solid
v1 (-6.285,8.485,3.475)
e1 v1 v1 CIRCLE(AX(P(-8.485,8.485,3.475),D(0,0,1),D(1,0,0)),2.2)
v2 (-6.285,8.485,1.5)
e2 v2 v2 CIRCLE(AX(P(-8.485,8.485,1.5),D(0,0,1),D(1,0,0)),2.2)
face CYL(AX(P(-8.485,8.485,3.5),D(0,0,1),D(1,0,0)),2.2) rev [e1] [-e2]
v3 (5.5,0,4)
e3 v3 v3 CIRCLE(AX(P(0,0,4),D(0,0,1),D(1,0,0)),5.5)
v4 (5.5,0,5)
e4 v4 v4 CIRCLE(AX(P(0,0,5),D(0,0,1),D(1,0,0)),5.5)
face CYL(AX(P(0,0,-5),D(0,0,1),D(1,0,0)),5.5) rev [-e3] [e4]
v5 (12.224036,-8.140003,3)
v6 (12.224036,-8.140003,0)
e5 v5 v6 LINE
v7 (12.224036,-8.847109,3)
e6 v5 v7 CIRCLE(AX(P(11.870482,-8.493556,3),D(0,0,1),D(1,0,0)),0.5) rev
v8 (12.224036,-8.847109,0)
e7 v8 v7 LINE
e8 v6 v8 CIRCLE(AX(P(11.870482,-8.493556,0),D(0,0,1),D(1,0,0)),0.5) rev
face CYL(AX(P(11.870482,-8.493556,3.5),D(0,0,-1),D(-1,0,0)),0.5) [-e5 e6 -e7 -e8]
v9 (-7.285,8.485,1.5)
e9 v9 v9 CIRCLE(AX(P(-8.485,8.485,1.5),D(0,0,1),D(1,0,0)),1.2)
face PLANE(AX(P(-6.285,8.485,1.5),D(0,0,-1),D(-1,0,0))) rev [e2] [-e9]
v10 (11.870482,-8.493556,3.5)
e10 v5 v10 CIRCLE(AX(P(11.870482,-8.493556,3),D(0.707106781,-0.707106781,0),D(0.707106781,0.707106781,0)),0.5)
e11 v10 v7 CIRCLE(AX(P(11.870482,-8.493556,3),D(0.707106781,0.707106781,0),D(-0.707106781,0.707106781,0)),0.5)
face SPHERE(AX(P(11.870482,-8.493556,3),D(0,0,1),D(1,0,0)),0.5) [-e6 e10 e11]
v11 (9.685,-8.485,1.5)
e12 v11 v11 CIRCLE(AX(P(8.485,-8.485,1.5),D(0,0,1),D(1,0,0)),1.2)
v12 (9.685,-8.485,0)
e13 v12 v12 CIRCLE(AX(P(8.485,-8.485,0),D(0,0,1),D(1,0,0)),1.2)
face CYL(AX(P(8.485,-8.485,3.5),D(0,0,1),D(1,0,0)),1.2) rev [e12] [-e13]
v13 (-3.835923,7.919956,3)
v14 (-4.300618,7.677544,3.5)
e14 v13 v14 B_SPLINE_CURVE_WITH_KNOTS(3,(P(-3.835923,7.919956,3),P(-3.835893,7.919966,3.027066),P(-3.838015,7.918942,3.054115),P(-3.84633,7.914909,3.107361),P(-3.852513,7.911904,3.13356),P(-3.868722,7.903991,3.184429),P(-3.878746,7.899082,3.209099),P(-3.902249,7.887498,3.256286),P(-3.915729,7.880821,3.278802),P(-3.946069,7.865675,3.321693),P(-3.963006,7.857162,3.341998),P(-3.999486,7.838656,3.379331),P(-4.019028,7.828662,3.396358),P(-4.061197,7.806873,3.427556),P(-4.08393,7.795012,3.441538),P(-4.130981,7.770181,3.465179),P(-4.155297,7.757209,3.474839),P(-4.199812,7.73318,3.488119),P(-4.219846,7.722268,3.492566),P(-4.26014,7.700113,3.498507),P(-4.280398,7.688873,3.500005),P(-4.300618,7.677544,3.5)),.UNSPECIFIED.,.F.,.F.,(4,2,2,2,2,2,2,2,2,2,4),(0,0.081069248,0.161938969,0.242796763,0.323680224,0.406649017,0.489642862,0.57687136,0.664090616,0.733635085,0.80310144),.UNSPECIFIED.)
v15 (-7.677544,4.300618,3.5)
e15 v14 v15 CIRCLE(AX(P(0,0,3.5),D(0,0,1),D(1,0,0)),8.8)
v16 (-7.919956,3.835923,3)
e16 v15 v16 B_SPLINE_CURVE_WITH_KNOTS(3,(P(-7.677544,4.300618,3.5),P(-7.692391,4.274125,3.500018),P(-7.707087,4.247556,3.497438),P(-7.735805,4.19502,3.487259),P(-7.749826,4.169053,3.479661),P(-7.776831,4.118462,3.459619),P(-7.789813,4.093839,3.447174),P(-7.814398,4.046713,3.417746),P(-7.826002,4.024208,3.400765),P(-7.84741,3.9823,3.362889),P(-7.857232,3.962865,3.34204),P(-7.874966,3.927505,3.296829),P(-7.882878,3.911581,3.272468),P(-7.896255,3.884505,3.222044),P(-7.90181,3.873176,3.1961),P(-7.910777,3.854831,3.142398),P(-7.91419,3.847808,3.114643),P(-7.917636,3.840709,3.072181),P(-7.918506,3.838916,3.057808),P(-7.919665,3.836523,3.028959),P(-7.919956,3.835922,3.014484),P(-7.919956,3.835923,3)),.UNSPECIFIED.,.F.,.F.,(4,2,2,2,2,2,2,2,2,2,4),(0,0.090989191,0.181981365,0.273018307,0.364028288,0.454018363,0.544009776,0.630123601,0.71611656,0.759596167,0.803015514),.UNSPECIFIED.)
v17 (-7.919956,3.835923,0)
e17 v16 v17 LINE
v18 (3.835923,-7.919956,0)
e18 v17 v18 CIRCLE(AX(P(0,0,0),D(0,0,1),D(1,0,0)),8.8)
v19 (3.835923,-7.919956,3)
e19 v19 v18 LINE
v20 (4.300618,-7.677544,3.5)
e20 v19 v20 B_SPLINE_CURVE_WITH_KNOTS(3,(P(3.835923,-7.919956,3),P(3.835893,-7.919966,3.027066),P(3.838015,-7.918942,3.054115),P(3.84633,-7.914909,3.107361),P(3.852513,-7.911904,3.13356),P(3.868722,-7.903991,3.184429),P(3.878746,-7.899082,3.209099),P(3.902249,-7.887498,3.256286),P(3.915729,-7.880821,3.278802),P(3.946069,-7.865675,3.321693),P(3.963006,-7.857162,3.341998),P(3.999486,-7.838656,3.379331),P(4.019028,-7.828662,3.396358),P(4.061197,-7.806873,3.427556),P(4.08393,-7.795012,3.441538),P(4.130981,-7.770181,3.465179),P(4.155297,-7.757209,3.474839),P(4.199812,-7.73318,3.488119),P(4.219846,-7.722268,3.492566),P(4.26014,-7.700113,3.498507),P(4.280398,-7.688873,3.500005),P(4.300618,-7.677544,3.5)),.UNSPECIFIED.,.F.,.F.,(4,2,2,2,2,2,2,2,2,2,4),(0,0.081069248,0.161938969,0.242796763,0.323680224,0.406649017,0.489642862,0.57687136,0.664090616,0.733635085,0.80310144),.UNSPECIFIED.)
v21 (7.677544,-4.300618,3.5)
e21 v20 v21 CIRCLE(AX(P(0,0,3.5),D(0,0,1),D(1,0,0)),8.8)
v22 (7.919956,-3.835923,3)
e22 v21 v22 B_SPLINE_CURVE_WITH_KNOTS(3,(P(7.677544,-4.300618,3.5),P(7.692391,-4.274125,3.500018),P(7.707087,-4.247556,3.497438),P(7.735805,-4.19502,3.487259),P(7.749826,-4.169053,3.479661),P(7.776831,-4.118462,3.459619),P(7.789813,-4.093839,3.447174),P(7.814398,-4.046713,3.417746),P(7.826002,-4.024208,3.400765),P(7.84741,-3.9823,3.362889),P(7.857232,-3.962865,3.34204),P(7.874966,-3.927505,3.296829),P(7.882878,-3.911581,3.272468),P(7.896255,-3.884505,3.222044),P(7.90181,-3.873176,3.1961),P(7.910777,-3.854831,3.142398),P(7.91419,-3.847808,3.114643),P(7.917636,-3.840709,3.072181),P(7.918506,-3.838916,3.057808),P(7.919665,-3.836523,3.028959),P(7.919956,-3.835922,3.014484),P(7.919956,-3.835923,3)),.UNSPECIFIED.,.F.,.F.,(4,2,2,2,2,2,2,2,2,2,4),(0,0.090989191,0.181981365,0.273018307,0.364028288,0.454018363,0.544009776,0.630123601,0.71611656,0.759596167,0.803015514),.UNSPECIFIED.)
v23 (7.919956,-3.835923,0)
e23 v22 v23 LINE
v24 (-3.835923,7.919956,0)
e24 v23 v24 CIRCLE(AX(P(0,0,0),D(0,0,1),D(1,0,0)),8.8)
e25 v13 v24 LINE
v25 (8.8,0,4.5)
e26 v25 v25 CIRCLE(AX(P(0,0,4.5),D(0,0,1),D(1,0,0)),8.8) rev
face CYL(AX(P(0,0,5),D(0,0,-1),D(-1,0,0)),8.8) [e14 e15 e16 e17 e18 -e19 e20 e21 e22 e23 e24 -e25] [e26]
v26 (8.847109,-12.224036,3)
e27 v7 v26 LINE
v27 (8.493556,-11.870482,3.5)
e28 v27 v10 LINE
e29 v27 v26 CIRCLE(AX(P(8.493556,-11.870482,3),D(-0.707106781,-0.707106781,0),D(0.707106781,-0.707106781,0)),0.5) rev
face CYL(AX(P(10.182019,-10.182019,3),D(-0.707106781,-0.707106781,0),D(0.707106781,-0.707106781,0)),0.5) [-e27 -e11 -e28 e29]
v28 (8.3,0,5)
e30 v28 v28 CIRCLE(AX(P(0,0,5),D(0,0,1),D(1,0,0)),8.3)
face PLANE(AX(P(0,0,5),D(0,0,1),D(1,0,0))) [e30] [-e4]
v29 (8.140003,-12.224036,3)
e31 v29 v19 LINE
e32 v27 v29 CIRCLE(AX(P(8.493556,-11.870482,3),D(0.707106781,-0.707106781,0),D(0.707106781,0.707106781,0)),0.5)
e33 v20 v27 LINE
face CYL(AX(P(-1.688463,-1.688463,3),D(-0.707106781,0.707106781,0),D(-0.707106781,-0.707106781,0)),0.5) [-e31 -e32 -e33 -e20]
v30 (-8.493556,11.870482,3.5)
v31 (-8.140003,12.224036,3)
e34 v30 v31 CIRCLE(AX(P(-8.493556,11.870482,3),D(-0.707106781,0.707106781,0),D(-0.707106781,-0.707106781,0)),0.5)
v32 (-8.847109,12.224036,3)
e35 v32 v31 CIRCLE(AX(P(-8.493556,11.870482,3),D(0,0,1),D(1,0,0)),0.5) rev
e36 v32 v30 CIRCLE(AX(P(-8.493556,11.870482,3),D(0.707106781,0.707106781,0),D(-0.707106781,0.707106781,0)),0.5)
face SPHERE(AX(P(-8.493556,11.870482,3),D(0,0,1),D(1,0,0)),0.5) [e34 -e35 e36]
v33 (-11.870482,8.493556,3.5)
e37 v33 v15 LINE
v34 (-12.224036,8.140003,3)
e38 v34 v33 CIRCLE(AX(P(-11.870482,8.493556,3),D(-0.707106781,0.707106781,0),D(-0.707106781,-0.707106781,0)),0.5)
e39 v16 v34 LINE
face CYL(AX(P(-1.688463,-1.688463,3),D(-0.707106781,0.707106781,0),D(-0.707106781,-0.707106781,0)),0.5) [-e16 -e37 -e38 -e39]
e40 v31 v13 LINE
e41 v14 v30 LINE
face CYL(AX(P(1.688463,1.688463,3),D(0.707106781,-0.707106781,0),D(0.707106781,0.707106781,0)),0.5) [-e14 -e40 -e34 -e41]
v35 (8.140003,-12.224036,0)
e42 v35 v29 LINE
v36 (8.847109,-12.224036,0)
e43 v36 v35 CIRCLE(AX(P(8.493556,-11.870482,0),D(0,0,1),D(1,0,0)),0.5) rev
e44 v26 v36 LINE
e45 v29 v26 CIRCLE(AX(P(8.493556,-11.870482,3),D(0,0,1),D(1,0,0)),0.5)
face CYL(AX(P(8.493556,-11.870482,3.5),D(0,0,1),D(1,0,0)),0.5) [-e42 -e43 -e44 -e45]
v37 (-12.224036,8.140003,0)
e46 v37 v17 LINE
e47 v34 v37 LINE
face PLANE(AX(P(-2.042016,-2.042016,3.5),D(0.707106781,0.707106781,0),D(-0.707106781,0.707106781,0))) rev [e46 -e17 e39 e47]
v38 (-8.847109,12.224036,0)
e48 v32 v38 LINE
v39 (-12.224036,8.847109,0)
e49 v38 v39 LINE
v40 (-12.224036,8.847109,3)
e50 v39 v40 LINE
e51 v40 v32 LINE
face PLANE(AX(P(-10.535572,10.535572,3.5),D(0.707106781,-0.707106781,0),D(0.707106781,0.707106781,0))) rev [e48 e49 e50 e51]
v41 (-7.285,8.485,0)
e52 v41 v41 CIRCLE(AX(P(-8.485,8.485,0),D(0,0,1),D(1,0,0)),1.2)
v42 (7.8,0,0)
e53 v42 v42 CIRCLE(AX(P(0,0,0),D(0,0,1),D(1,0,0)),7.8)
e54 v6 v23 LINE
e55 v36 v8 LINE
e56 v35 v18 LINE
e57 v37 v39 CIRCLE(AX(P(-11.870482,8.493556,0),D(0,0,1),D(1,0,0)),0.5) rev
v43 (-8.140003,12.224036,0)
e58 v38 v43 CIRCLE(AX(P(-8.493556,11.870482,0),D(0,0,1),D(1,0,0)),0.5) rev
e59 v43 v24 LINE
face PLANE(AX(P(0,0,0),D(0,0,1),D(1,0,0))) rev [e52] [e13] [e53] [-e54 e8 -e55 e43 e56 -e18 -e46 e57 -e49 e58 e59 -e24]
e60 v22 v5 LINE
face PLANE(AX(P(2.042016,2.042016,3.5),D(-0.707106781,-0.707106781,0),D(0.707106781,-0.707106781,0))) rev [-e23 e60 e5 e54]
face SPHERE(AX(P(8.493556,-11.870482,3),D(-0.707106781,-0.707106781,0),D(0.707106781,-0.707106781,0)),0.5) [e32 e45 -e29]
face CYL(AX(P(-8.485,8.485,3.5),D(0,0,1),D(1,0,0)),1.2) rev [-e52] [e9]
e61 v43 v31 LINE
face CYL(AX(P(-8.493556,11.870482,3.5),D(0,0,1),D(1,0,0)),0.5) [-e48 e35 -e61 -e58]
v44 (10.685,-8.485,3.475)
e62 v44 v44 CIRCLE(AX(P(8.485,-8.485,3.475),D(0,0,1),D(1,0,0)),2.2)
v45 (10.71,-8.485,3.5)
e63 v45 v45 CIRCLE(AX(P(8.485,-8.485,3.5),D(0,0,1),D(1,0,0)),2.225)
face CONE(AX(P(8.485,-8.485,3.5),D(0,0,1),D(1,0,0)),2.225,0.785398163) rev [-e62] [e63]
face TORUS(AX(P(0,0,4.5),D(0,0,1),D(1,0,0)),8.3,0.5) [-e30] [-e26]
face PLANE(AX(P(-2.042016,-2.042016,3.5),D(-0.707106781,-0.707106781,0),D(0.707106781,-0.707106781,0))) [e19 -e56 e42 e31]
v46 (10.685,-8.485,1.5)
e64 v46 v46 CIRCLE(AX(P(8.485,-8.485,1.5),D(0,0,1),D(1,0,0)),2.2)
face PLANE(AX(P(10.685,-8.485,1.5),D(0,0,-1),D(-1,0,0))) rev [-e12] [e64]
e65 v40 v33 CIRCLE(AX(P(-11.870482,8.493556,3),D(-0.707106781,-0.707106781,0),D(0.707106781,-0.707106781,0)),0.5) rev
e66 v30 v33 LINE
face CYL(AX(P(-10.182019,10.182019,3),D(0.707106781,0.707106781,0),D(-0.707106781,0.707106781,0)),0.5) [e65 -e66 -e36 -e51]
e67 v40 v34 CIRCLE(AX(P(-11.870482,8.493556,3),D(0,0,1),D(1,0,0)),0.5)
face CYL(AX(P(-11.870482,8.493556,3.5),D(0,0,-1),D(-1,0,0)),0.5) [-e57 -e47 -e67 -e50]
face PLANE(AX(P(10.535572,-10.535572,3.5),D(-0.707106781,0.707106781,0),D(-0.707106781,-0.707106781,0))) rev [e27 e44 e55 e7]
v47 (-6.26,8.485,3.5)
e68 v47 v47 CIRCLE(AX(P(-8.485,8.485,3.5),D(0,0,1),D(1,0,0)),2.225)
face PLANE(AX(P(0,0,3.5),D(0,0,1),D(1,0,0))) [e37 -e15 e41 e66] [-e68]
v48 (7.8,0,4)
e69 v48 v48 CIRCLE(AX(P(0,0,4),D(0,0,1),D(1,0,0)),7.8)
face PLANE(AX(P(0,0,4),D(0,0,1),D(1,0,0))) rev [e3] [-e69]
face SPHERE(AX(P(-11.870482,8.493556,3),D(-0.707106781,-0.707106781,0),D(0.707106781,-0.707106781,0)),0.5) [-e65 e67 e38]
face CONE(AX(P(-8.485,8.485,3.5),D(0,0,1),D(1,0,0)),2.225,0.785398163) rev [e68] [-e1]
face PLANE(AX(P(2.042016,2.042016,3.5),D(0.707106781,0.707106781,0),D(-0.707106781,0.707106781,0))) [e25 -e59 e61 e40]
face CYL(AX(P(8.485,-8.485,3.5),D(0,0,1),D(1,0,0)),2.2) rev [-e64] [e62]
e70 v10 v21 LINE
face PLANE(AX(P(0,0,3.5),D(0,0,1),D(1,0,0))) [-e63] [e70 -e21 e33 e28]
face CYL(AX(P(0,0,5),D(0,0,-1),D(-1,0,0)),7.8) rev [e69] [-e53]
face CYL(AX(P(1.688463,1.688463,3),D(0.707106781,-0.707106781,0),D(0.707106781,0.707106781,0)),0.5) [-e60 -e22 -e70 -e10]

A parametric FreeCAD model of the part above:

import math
import FreeCAD as App
import Part
import Sketcher
from FreeCAD import Vector
Q = App.Units.Quantity


def edges_at(feature, points):
    """Names of the edges that pass closest to the given points."""
    edges = feature.Shape.Edges
    near = lambda p: min(range(len(edges)), key=lambda i: edges[i].distToShape(Part.Vertex(*p))[0])
    return sorted({f"Edge{near(p) + 1}" for p in points})


def faces_at(feature, points):
    """Names of the faces that lie closest to the given points."""
    faces = feature.Shape.Faces
    near = lambda p: min(range(len(faces)), key=lambda i: faces[i].distToShape(Part.Vertex(*p))[0])
    return sorted({f"Face{near(p) + 1}" for p in points})

doc = App.newDocument("Part")
body = doc.addObject("PartDesign::Body", "Body")

# Sketch on XY plane
sketch1 = body.newObject("Sketcher::SketchObject", "Sketch")
sketch1.AttachmentSupport = (doc.getObject("XY_Plane"), [""])
sketch1.MapMode = "FlatFace"
sketch1.addGeometry(Part.ArcOfCircle(Part.Circle(Vector(0, 0, 0), Vector(0, 0, 1), 8.8), math.radians(-26), math.radians(0)), False)
sketch1.addGeometry(Part.ArcOfCircle(Part.Circle(Vector(0, 0, 0), Vector(0, 0, 1), 8.8), math.radians(0), math.radians(116)), False)
sketch1.addGeometry(Part.ArcOfCircle(Part.Circle(Vector(0, 0, 0), Vector(0, 0, 1), 8.8), math.radians(115.84), math.radians(135)), False)
sketch1.addGeometry(Part.ArcOfCircle(Part.Circle(Vector(0, 0, 0), Vector(0, 0, 1), 8.8), math.radians(135), math.radians(154.16)), False)
sketch1.addGeometry(Part.ArcOfCircle(Part.Circle(Vector(0, 0, 0), Vector(0, 0, 1), 8.8), math.radians(154), math.radians(296)), False)
sketch1.addGeometry(Part.ArcOfCircle(Part.Circle(Vector(0, 0, 0), Vector(0, 0, 1), 8.8), math.radians(-64.16), math.radians(-45)), False)
sketch1.addGeometry(Part.ArcOfCircle(Part.Circle(Vector(0, 0, 0), Vector(0, 0, 1), 8.8), math.radians(-45), math.radians(-25.84)), False)
sketch1.addConstraint(Sketcher.Constraint("Tangent", 0, 2, 1, 1))
sketch1.addConstraint(Sketcher.Constraint("Tangent", 1, 2, 2, 1))
sketch1.addConstraint(Sketcher.Constraint("Tangent", 2, 2, 3, 1))
sketch1.addConstraint(Sketcher.Constraint("Tangent", 3, 2, 4, 1))
sketch1.addConstraint(Sketcher.Constraint("Tangent", 4, 2, 5, 1))
sketch1.addConstraint(Sketcher.Constraint("Tangent", 5, 2, 6, 1))
sketch1.addConstraint(Sketcher.Constraint("Tangent", 6, 2, 0, 1))
sketch1.addConstraint(Sketcher.Constraint("Coincident", 0, 3, -1, 1))
sketch1.addConstraint(Sketcher.Constraint("Coincident", 2, 3, -1, 1))
sketch1.addConstraint(Sketcher.Constraint("Coincident", 4, 3, -1, 1))
sketch1.addConstraint(Sketcher.Constraint("PointOnObject", 0, 2, -1))
sketch1.addConstraint(Sketcher.Constraint("Radius", 0, Q("8.8 mm")))
sketch1.addConstraint(Sketcher.Constraint("DistanceX", 2, 2, -1, 1, Q("6.22254 mm")))
sketch1.addConstraint(Sketcher.Constraint("DistanceX", -1, 1, 5, 2, Q("6.22254 mm")))
sketch1.addConstraint(Sketcher.Constraint("DistanceX", 1, 2, -1, 1, Q("3.835923 mm")))
sketch1.addConstraint(Sketcher.Constraint("DistanceX", 3, 2, -1, 1, Q("7.919956 mm")))
sketch1.addConstraint(Sketcher.Constraint("DistanceX", -1, 1, 4, 2, Q("3.835923 mm")))
sketch1.addConstraint(Sketcher.Constraint("DistanceX", -1, 1, 6, 2, Q("7.919956 mm")))
pad1 = body.newObject("PartDesign::Pad", "Pad")
pad1.Profile = sketch1
pad1.Length = 5
doc.recompute()

thickness = body.newObject("PartDesign::Thickness", "Thickness")
thickness.Base = (pad1, faces_at(pad1, [(0, 0, 0)]))
thickness.Value = 1
thickness.Reversed = True
thickness.Join = "Intersection"

# Sketch on XY plane
sketch2 = body.newObject("Sketcher::SketchObject", "Sketch001")
sketch2.AttachmentSupport = (doc.getObject("XY_Plane"), [""])
sketch2.MapMode = "FlatFace"
sketch2.addGeometry(Part.ArcOfCircle(Part.Circle(Vector(0, 0, 0), Vector(0, 0, 1), 8.8), math.radians(135), math.radians(154.16)), False)
sketch2.addGeometry(Part.ArcOfCircle(Part.Circle(Vector(0, 0, 0), Vector(0, 0, 1), 8.8), math.radians(115.84), math.radians(135)), False)
sketch2.addGeometry(Part.LineSegment(Vector(-3.8, 7.9, 0), Vector(-8.5, 12.6, 0)), False)
sketch2.addGeometry(Part.LineSegment(Vector(-8.5, 12.6, 0), Vector(-12.6, 8.5, 0)), False)
sketch2.addGeometry(Part.LineSegment(Vector(-12.6, 8.5, 0), Vector(-7.9, 3.8, 0)), False)
sketch2.addGeometry(Part.ArcOfCircle(Part.Circle(Vector(0, 0, 0), Vector(0, 0, 1), 8.8), math.radians(-45), math.radians(-25.84)), False)
sketch2.addGeometry(Part.ArcOfCircle(Part.Circle(Vector(0, 0, 0), Vector(0, 0, 1), 8.8), math.radians(-64.16), math.radians(-45)), False)
sketch2.addGeometry(Part.LineSegment(Vector(3.8, -7.9, 0), Vector(8.5, -12.6, 0)), False)
sketch2.addGeometry(Part.LineSegment(Vector(8.5, -12.6, 0), Vector(12.6, -8.5, 0)), False)
sketch2.addGeometry(Part.LineSegment(Vector(12.6, -8.5, 0), Vector(7.9, -3.8, 0)), False)
sketch2.addConstraint(Sketcher.Constraint("Tangent", 0, 1, 1, 2))
sketch2.addConstraint(Sketcher.Constraint("Coincident", 1, 1, 2, 1))
sketch2.addConstraint(Sketcher.Constraint("Coincident", 2, 2, 3, 1))
sketch2.addConstraint(Sketcher.Constraint("Coincident", 3, 2, 4, 1))
sketch2.addConstraint(Sketcher.Constraint("Coincident", 4, 2, 0, 2))
sketch2.addConstraint(Sketcher.Constraint("Tangent", 5, 1, 6, 2))
sketch2.addConstraint(Sketcher.Constraint("Coincident", 6, 1, 7, 1))
sketch2.addConstraint(Sketcher.Constraint("Coincident", 7, 2, 8, 1))
sketch2.addConstraint(Sketcher.Constraint("Coincident", 8, 2, 9, 1))
sketch2.addConstraint(Sketcher.Constraint("Coincident", 9, 2, 5, 2))
sketch2.addConstraint(Sketcher.Constraint("Coincident", 0, 3, -1, 1))
sketch2.addConstraint(Sketcher.Constraint("Coincident", 5, 3, -1, 1))
sketch2.addConstraint(Sketcher.Constraint("Equal", 0, 1))
sketch2.addConstraint(Sketcher.Constraint("Equal", 1, 5))
sketch2.addConstraint(Sketcher.Constraint("Equal", 5, 6))
sketch2.addConstraint(Sketcher.Constraint("Symmetric", 2, 2, 7, 2, -1, 1))
sketch2.addConstraint(Sketcher.Constraint("Symmetric", 3, 2, 8, 2, -1, 1))
sketch2.addConstraint(Sketcher.Constraint("Perpendicular", 2, 3))
sketch2.addConstraint(Sketcher.Constraint("Perpendicular", 3, 4))
sketch2.addConstraint(Sketcher.Constraint("Parallel", 4, 7))
sketch2.addConstraint(Sketcher.Constraint("Perpendicular", 8, 9))
sketch2.addConstraint(Sketcher.Constraint("Equal", 2, 4))
sketch2.addConstraint(Sketcher.Constraint("Radius", 0, Q("8.8 mm")))
sketch2.addConstraint(Sketcher.Constraint("Angle", 2, Q("135 deg")))
sketch2.addConstraint(Sketcher.Constraint("DistanceY", 1, 1, 3, 2, Q("0.5736 mm")))
sketch2.addConstraint(Sketcher.Constraint("Distance", 2, Q("6.586888 mm")))
sketch2.addConstraint(Sketcher.Constraint("DistanceX", 0, 1, -1, 1, Q("6.22254 mm")))
sketch2.addConstraint(Sketcher.Constraint("DistanceX", -1, 1, 5, 1, Q("6.22254 mm")))
pad2 = body.newObject("PartDesign::Pad", "Pad001")
pad2.Profile = sketch2
pad2.Length = 3.5

# Sketch on YZ plane
sketch3 = body.newObject("Sketcher::SketchObject", "Sketch002")
sketch3.AttachmentSupport = (doc.getObject("YZ_Plane"), [""])
sketch3.MapMode = "FlatFace"
sketch3.AttachmentOffset = App.Placement(Vector(0, 0, -8.485), App.Rotation())
sketch3.addGeometry(Part.LineSegment(Vector(8.485, 0, 0), Vector(8.485, 3.5, 0)), False)
sketch3.addGeometry(Part.LineSegment(Vector(8.485, 3.5, 0), Vector(6.26, 3.5, 0)), False)
sketch3.addGeometry(Part.LineSegment(Vector(6.26, 3.5, 0), Vector(6.285, 3.475, 0)), False)
sketch3.addGeometry(Part.LineSegment(Vector(6.285, 3.475, 0), Vector(6.285, 1.5, 0)), False)
sketch3.addGeometry(Part.LineSegment(Vector(6.285, 1.5, 0), Vector(7.285, 1.5, 0)), False)
sketch3.addGeometry(Part.LineSegment(Vector(7.285, 1.5, 0), Vector(7.285, 0, 0)), False)
sketch3.addGeometry(Part.LineSegment(Vector(7.285, 0, 0), Vector(8.485, 0, 0)), False)
sketch3.addGeometry(Part.LineSegment(Vector(8.485, 3.5, 0), Vector(8.485, 0, 0)), True)  # axis
sketch3.addConstraint(Sketcher.Constraint("Coincident", 0, 2, 1, 1))
sketch3.addConstraint(Sketcher.Constraint("Coincident", 1, 2, 2, 1))
sketch3.addConstraint(Sketcher.Constraint("Coincident", 2, 2, 3, 1))
sketch3.addConstraint(Sketcher.Constraint("Coincident", 3, 2, 4, 1))
sketch3.addConstraint(Sketcher.Constraint("Coincident", 4, 2, 5, 1))
sketch3.addConstraint(Sketcher.Constraint("Coincident", 5, 2, 6, 1))
sketch3.addConstraint(Sketcher.Constraint("Coincident", 6, 2, 0, 1))
sketch3.addConstraint(Sketcher.Constraint("Vertical", 0))
sketch3.addConstraint(Sketcher.Constraint("Horizontal", 1))
sketch3.addConstraint(Sketcher.Constraint("Vertical", 3))
sketch3.addConstraint(Sketcher.Constraint("Horizontal", 4))
sketch3.addConstraint(Sketcher.Constraint("Vertical", 5))
sketch3.addConstraint(Sketcher.Constraint("Horizontal", 6))
sketch3.addConstraint(Sketcher.Constraint("Vertical", 7))
sketch3.addConstraint(Sketcher.Constraint("Coincident", 7, 1, 0, 2))
sketch3.addConstraint(Sketcher.Constraint("PointOnObject", 5, 2, -1))
sketch3.addConstraint(Sketcher.Constraint("PointOnObject", 7, 2, -1))
sketch3.addConstraint(Sketcher.Constraint("DistanceX", 4, 1, 4, 2, Q("1 mm")))
sketch3.addConstraint(Sketcher.Constraint("Angle", 2, Q("-45 deg")))
sketch3.addConstraint(Sketcher.Constraint("DistanceX", 6, 1, 6, 2, Q("1.2 mm")))
sketch3.addConstraint(Sketcher.Constraint("DistanceY", 0, 1, 0, 2, Q("3.5 mm")))
sketch3.addConstraint(Sketcher.Constraint("DistanceY", 5, 2, 5, 1, Q("1.5 mm")))
sketch3.addConstraint(Sketcher.Constraint("DistanceX", 1, 2, 1, 1, Q("2.225 mm")))
sketch3.addConstraint(Sketcher.Constraint("DistanceX", -1, 1, 1, 2, Q("6.26 mm")))
groove = body.newObject("PartDesign::Groove", "Groove")
groove.Profile = sketch3
groove.ReferenceAxis = (sketch3, ["Axis0"])
groove.Angle = 360
doc.recompute()

datumline = body.newObject("PartDesign::Line", "DatumLine")
datumline.Placement = App.Placement(Vector(0, 0, 0), App.Rotation(Vector(0, 0, 1), Vector(0.707106781, -0.707106781, 0)))
linearpattern = body.newObject("PartDesign::LinearPattern", "LinearPattern")
linearpattern.Originals = [groove]
linearpattern.Direction = (datumline, [""])
linearpattern.Mode = "offset"
linearpattern.Offset = 23.999204
linearpattern.Occurrences = 2
body.Tip = linearpattern
doc.recompute()

fillet = body.newObject("PartDesign::Fillet", "Fillet")
fillet.Base = (linearpattern, edges_at(linearpattern, [
    (6.165, -10.249, 3.5),
    (8.494, -12.578, 1.75),
    (12.578, -8.494, 1.75),
    (10.536, -10.536, 3.5),
    (10.249, -6.165, 3.5),
    (-12.578, 8.494, 1.75),
    (-6.165, 10.249, 3.5),
    (-8.494, 12.578, 1.75),
    (-10.249, 6.165, 3.5),
    (-10.536, 10.536, 3.5),
    (5.1, -7.171, 5),
]))
fillet.Radius = 0.5

# Sketch on XY plane
sketch4 = body.newObject("Sketcher::SketchObject", "Sketch003")
sketch4.AttachmentSupport = (doc.getObject("XY_Plane"), [""])
sketch4.MapMode = "FlatFace"
sketch4.AttachmentOffset = App.Placement(Vector(0, 0, 5), App.Rotation())
sketch4.addGeometry(Part.Circle(Vector(0, 0, 0), Vector(0, 0, 1), 6), False)
sketch4.addConstraint(Sketcher.Constraint("Coincident", 0, 3, -1, 1))
sketch4.addConstraint(Sketcher.Constraint("Diameter", 0, Q("11 mm")))
pocket1 = body.newObject("PartDesign::Pocket", "Pocket")
pocket1.Profile = sketch4
pocket1.Length = 10

doc.recompute()
